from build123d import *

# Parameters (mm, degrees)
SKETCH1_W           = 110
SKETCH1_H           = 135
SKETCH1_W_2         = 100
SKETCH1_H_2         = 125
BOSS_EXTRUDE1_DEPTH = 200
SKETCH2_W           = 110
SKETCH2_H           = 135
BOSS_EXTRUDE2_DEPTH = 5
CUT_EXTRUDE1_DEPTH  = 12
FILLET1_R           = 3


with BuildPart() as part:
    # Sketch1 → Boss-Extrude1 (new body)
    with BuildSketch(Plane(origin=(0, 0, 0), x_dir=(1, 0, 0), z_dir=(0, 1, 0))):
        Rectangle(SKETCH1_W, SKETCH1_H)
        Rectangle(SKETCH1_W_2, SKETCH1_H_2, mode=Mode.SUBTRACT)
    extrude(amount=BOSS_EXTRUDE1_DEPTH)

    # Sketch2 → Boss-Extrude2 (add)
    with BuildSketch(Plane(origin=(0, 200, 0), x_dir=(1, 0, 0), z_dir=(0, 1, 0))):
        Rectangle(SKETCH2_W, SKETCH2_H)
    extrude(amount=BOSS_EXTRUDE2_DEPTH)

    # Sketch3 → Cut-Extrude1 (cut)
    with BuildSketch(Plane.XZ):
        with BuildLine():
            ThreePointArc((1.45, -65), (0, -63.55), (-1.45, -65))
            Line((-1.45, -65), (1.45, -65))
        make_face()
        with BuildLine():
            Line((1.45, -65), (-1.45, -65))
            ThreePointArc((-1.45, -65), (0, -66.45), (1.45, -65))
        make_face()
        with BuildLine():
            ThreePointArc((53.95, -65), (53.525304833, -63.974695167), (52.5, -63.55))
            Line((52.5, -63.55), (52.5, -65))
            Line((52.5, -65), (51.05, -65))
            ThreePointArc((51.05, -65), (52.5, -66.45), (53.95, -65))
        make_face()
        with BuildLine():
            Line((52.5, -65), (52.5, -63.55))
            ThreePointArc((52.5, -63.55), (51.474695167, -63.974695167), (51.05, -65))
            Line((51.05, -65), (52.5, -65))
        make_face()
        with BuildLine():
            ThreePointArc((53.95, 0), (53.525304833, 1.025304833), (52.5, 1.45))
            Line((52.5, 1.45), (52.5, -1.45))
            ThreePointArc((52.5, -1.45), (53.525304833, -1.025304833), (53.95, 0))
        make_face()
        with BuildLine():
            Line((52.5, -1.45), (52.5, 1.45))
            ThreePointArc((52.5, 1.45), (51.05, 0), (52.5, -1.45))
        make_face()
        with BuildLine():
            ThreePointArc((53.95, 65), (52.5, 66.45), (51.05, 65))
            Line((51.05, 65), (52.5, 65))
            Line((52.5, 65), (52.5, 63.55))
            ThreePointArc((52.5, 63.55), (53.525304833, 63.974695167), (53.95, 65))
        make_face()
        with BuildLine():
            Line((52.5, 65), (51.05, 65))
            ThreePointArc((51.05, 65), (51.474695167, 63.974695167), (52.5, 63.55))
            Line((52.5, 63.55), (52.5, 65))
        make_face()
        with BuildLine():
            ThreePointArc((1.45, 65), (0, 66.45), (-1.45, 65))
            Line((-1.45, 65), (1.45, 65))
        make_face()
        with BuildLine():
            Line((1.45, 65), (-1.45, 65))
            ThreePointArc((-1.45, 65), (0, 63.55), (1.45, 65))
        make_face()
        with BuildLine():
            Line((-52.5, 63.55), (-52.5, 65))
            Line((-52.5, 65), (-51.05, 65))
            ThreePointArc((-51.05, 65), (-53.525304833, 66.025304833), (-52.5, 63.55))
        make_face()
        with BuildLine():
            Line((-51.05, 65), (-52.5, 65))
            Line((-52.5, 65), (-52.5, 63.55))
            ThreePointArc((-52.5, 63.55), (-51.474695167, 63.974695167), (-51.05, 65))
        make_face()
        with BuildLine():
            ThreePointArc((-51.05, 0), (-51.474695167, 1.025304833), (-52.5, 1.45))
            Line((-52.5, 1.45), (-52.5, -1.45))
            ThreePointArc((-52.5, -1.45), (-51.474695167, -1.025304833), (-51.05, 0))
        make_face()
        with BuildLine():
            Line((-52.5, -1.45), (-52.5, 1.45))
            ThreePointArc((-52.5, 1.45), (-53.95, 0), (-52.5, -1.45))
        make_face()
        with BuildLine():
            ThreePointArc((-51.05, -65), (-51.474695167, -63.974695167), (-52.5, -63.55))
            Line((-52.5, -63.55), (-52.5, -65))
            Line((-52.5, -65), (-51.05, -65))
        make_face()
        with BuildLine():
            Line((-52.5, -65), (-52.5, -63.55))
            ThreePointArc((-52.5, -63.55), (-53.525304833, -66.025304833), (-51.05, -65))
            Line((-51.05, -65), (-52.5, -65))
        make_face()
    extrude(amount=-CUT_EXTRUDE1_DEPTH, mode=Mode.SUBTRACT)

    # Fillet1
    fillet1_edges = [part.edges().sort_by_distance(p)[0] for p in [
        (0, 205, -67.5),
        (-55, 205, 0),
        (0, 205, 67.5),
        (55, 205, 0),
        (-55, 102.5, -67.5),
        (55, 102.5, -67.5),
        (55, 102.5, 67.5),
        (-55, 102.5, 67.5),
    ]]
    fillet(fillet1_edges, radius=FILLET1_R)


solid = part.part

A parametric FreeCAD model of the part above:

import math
import FreeCAD as App
import Part
import Sketcher
from FreeCAD import Vector


def edges_at(feature, points):
    """Names of the edges that pass closest to the given points."""
    edges = feature.Shape.Edges
    near = lambda p: min(range(len(edges)), key=lambda i: edges[i].distToShape(Part.Vertex(*p))[0])
    return sorted({f"Edge{near(p) + 1}" for p in points})


def add_polygon(sketch, points):
    """Adds a closed chain of lines whose ends are joined by coincident constraints."""
    first, n = sketch.GeometryCount, len(points)
    for a, b in zip(points, points[1:] + points[:1]):
        sketch.addGeometry(Part.LineSegment(App.Vector(*a, 0), App.Vector(*b, 0)), False)
    for i in range(n):
        sketch.addConstraint(Sketcher.Constraint("Coincident", first + i, 2, first + (i + 1) % n, 1))

doc = App.newDocument("Part")
params = doc.addObject("Spreadsheet::Sheet", "Params")
for row, (alias, value) in enumerate([
    ("sketch1_width", "110 mm"),
    ("sketch1_width2", "100 mm"),
    ("sketch1_height", "135 mm"),
    ("sketch1_height2", "125 mm"),
    ("pad1_length", "200 mm"),
    ("sketch2_width", "110 mm"),
    ("sketch2_height", "135 mm"),
    ("pad2_length", "5 mm"),
    ("sketch3_diameter", "2.9 mm"),
    ("pocket1_length", "12 mm"),
    ("fillet_radius", "3 mm"),
], start=1):
    params.set(f"A{row}", alias)
    params.set(f"B{row}", "=" + value)
    params.setAlias(f"B{row}", alias)

body = doc.addObject("PartDesign::Body", "Body")

# Sketch on XZ plane
sketch1 = body.newObject("Sketcher::SketchObject", "Sketch")
sketch1.AttachmentSupport = (doc.getObject("XZ_Plane"), [""])
sketch1.MapMode = "FlatFace"
add_polygon(sketch1, [(-55, -68), (-55, 68), (55, 68), (55, -68)])  # lines 0-3
add_polygon(sketch1, [(50, 62), (-50, 62), (-50, -62), (50, -62)])  # lines 4-7
sketch1.addConstraint(Sketcher.Constraint("Vertical", 0))
sketch1.addConstraint(Sketcher.Constraint("Horizontal", 1))
sketch1.addConstraint(Sketcher.Constraint("Vertical", 2))
sketch1.addConstraint(Sketcher.Constraint("Horizontal", 3))
sketch1.addConstraint(Sketcher.Constraint("Horizontal", 4))
sketch1.addConstraint(Sketcher.Constraint("Vertical", 5))
sketch1.addConstraint(Sketcher.Constraint("Horizontal", 6))
sketch1.addConstraint(Sketcher.Constraint("Vertical", 7))
sketch1.addConstraint(Sketcher.Constraint("Symmetric", 0, 2, 2, 2, -1, 1))
sketch1.addConstraint(Sketcher.Constraint("Symmetric", 4, 2, 6, 2, -1, 1))
sketch1.addConstraint(Sketcher.Constraint("DistanceX", 1, 1, 1, 2, 110.0))
sketch1.addConstraint(Sketcher.Constraint("DistanceX", 4, 2, 4, 1, 100.0))
sketch1.addConstraint(Sketcher.Constraint("DistanceY", 0, 1, 0, 2, 135.0))
sketch1.addConstraint(Sketcher.Constraint("DistanceY", 5, 2, 5, 1, 125.0))
sketch1.setExpression("Constraints[18]", "Params.sketch1_width")
sketch1.setExpression("Constraints[19]", "Params.sketch1_width2")
sketch1.setExpression("Constraints[20]", "Params.sketch1_height")
sketch1.setExpression("Constraints[21]", "Params.sketch1_height2")
pad1 = body.newObject("PartDesign::Pad", "Pad")
pad1.Profile = sketch1
pad1.setExpression("Length", "Params.pad1_length")
pad1.Reversed = True

# Sketch on XZ plane
sketch2 = body.newObject("Sketcher::SketchObject", "Sketch001")
sketch2.AttachmentSupport = (doc.getObject("XZ_Plane"), [""])
sketch2.MapMode = "FlatFace"
sketch2.AttachmentOffset = App.Placement(Vector(0, 0, -200), App.Rotation())
add_polygon(sketch2, [(-55, -68), (-55, 68), (55, 68), (55, -68)])  # lines 0-3
sketch2.addConstraint(Sketcher.Constraint("Vertical", 0))
sketch2.addConstraint(Sketcher.Constraint("Horizontal", 1))
sketch2.addConstraint(Sketcher.Constraint("Vertical", 2))
sketch2.addConstraint(Sketcher.Constraint("Horizontal", 3))
sketch2.addConstraint(Sketcher.Constraint("Symmetric", 0, 2, 2, 2, -1, 1))
sketch2.addConstraint(Sketcher.Constraint("DistanceX", 1, 1, 1, 2, 110.0))
sketch2.addConstraint(Sketcher.Constraint("DistanceY", 0, 1, 0, 2, 135.0))
sketch2.setExpression("Constraints[9]", "Params.sketch2_width")
sketch2.setExpression("Constraints[10]", "Params.sketch2_height")
pad2 = body.newObject("PartDesign::Pad", "Pad001")
pad2.Profile = sketch2
pad2.setExpression("Length", "Params.pad2_length")
pad2.Reversed = True

# Sketch on XZ plane
sketch3 = body.newObject("Sketcher::SketchObject", "Sketch002")
sketch3.AttachmentSupport = (doc.getObject("XZ_Plane"), [""])
sketch3.MapMode = "FlatFace"
sketch3.addGeometry(Part.Circle(Vector(0, -65, 0), Vector(0, 0, 1), 1.4), False)
sketch3.addGeometry(Part.ArcOfCircle(Part.Circle(Vector(52.5, -65, 0), Vector(0, 0, 1), 1.4), math.radians(0), math.radians(90)), False)
sketch3.addGeometry(Part.ArcOfCircle(Part.Circle(Vector(52.5, -65, 0), Vector(0, 0, 1), 1.4), math.radians(90), math.radians(180)), False)
sketch3.addGeometry(Part.ArcOfCircle(Part.Circle(Vector(52.5, -65, 0), Vector(0, 0, 1), 1.4), math.radians(180), math.radians(360)), False)
sketch3.addGeometry(Part.ArcOfCircle(Part.Circle(Vector(52.5, 0, 0), Vector(0, 0, 1), 1.4), math.radians(0), math.radians(90)), False)
sketch3.addGeometry(Part.ArcOfCircle(Part.Circle(Vector(52.5, 0, 0), Vector(0, 0, 1), 1.4), math.radians(90), math.radians(270)), False)
sketch3.addGeometry(Part.ArcOfCircle(Part.Circle(Vector(52.5, 0, 0), Vector(0, 0, 1), 1.4), math.radians(-90), math.radians(0)), False)
sketch3.addGeometry(Part.ArcOfCircle(Part.Circle(Vector(52.5, 65, 0), Vector(0, 0, 1), 1.4), math.radians(0), math.radians(180)), False)
sketch3.addGeometry(Part.ArcOfCircle(Part.Circle(Vector(52.5, 65, 0), Vector(0, 0, 1), 1.4), math.radians(180), math.radians(270)), False)
sketch3.addGeometry(Part.ArcOfCircle(Part.Circle(Vector(52.5, 65, 0), Vector(0, 0, 1), 1.4), math.radians(-90), math.radians(0)), False)
sketch3.addGeometry(Part.Circle(Vector(0, 65, 0), Vector(0, 0, 1), 1.4), False)
sketch3.addGeometry(Part.ArcOfCircle(Part.Circle(Vector(-52.5, 65, 0), Vector(0, 0, 1), 1.4), math.radians(0), math.radians(270)), False)
sketch3.addGeometry(Part.ArcOfCircle(Part.Circle(Vector(-52.5, 65, 0), Vector(0, 0, 1), 1.4), math.radians(-90), math.radians(0)), False)
sketch3.addGeometry(Part.ArcOfCircle(Part.Circle(Vector(-52.5, 0, 0), Vector(0, 0, 1), 1.4), math.radians(0), math.radians(90)), False)
sketch3.addGeometry(Part.ArcOfCircle(Part.Circle(Vector(-52.5, 0, 0), Vector(0, 0, 1), 1.4), math.radians(90), math.radians(270)), False)
sketch3.addGeometry(Part.ArcOfCircle(Part.Circle(Vector(-52.5, 0, 0), Vector(0, 0, 1), 1.4), math.radians(-90), math.radians(0)), False)
sketch3.addGeometry(Part.ArcOfCircle(Part.Circle(Vector(-52.5, -65, 0), Vector(0, 0, 1), 1.4), math.radians(0), math.radians(90)), False)
sketch3.addGeometry(Part.ArcOfCircle(Part.Circle(Vector(-52.5, -65, 0), Vector(0, 0, 1), 1.4), math.radians(90), math.radians(360)), False)
sketch3.addConstraint(Sketcher.Constraint("Tangent", 1, 2, 2, 1))
sketch3.addConstraint(Sketcher.Constraint("Tangent", 2, 2, 3, 1))
sketch3.addConstraint(Sketcher.Constraint("Tangent", 3, 2, 1, 1))
sketch3.addConstraint(Sketcher.Constraint("Tangent", 4, 2, 5, 1))
sketch3.addConstraint(Sketcher.Constraint("Tangent", 5, 2, 6, 1))
sketch3.addConstraint(Sketcher.Constraint("Tangent", 6, 2, 4, 1))
sketch3.addConstraint(Sketcher.Constraint("Tangent", 7, 2, 8, 1))
sketch3.addConstraint(Sketcher.Constraint("Tangent", 8, 2, 9, 1))
sketch3.addConstraint(Sketcher.Constraint("Tangent", 9, 2, 7, 1))
sketch3.addConstraint(Sketcher.Constraint("Tangent", 11, 1, 12, 2))
sketch3.addConstraint(Sketcher.Constraint("Coincident", 12, 1, 11, 2))
sketch3.addConstraint(Sketcher.Constraint("Tangent", 13, 2, 14, 1))
sketch3.addConstraint(Sketcher.Constraint("Tangent", 14, 2, 15, 1))
sketch3.addConstraint(Sketcher.Constraint("Tangent", 15, 2, 13, 1))
sketch3.addConstraint(Sketcher.Constraint("Tangent", 16, 1, 17, 2))
sketch3.addConstraint(Sketcher.Constraint("Coincident", 17, 1, 16, 2))
sketch3.addConstraint(Sketcher.Constraint("Equal", 0, 1))
sketch3.addConstraint(Sketcher.Constraint("Equal", 3, 4))
sketch3.addConstraint(Sketcher.Constraint("Equal", 6, 7))
sketch3.addConstraint(Sketcher.Constraint("Equal", 9, 10))
sketch3.addConstraint(Sketcher.Constraint("Equal", 10, 11))
sketch3.addConstraint(Sketcher.Constraint("Equal", 12, 13))
sketch3.addConstraint(Sketcher.Constraint("Equal", 15, 16))
sketch3.addConstraint(Sketcher.Constraint("Symmetric", 0, 3, 10, 3, -1, 1))
sketch3.addConstraint(Sketcher.Constraint("Symmetric", 1, 3, 11, 3, -1, 1))
sketch3.addConstraint(Sketcher.Constraint("Symmetric", 4, 3, 13, 3, -1, 1))
sketch3.addConstraint(Sketcher.Constraint("Symmetric", 7, 3, 16, 3, -1, 1))
sketch3.addConstraint(Sketcher.Constraint("Symmetric", 7, 3, 11, 3, -2))
sketch3.addConstraint(Sketcher.Constraint("Symmetric", 4, 2, 13, 2, -2))
sketch3.addConstraint(Sketcher.Constraint("PointOnObject", 0, 3, -2))
sketch3.addConstraint(Sketcher.Constraint("PointOnObject", 6, 2, -1))
sketch3.addConstraint(Sketcher.Constraint("PointOnObject", 15, 2, -1))
sketch3.addConstraint(Sketcher.Constraint("Horizontal", 0, 3, 1, 3))
sketch3.addConstraint(Sketcher.Constraint("Horizontal", 17, 3, 2, 2))
sketch3.addConstraint(Sketcher.Constraint("Horizontal", 2, 2, 3, 2))
sketch3.addConstraint(Sketcher.Constraint("Horizontal", 12, 3, 7, 2))
sketch3.addConstraint(Sketcher.Constraint("Horizontal", 7, 2, 9, 2))
sketch3.addConstraint(Sketcher.Constraint("Horizontal", 9, 2, 11, 1))
sketch3.addConstraint(Sketcher.Constraint("Horizontal", 3, 2, 16, 1))
sketch3.addConstraint(Sketcher.Constraint("Vertical", 3, 3, 4, 3))
sketch3.addConstraint(Sketcher.Constraint("Vertical", 9, 3, 1, 2))
sketch3.addConstraint(Sketcher.Constraint("Vertical", 1, 2, 4, 2))
sketch3.addConstraint(Sketcher.Constraint("Vertical", 4, 2, 5, 2))
sketch3.addConstraint(Sketcher.Constraint("Vertical", 5, 2, 8, 2))
sketch3.addConstraint(Sketcher.Constraint("Vertical", 17, 3, 12, 1))
sketch3.addConstraint(Sketcher.Constraint("Vertical", 13, 2, 14, 2))
sketch3.addConstraint(Sketcher.Constraint("Vertical", 14, 2, 17, 1))
sketch3.addConstraint(Sketcher.Constraint("Diameter", 0, 2.9))
sketch3.addConstraint(Sketcher.Constraint("DistanceY", 0, 3, -1, 1, 65.0))
sketch3.addConstraint(Sketcher.Constraint("DistanceX", 11, 3, 8, 3, 105.0))
sketch3.setExpression("Constraints[47]", "Params.sketch3_diameter")
pocket1 = body.newObject("PartDesign::Pocket", "Pocket")
pocket1.Profile = sketch3
pocket1.setExpression("Length", "Params.pocket1_length")
doc.recompute()

fillet = body.newObject("PartDesign::Fillet", "Fillet")
fillet.Base = (pocket1, edges_at(pocket1, [
    (0, 205, -67.5),
    (-55, 205, 0),
    (0, 205, 67.5),
    (55, 205, 0),
    (-55, 102.5, -67.5),
    (55, 102.5, -67.5),
    (55, 102.5, 67.5),
    (-55, 102.5, 67.5),
]))
fillet.setExpression("Radius", "Params.fillet_radius")

doc.recompute()
